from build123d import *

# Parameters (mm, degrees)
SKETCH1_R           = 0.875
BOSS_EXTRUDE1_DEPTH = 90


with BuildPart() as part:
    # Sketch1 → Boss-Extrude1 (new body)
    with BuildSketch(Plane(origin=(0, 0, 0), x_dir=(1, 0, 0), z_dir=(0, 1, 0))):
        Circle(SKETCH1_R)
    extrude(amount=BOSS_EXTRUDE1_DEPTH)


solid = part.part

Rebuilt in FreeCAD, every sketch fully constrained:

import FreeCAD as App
import Part
import Sketcher

V = App.Vector

doc = App.newDocument("Part")
body = doc.addObject("PartDesign::Body", "Body")

# Sketch on XZ plane
sketch1 = body.newObject("Sketcher::SketchObject", "Sketch")
sketch1.AttachmentSupport = (doc.getObject("XZ_Plane"), [""])
sketch1.MapMode = "FlatFace"
sketch1.addGeometry(Part.Circle(V(0, 0, 0), V(0, 0, 1), 0.9), False)
sketch1.addConstraint([
    Sketcher.Constraint("Coincident", 0, 3, -1, 1),
    Sketcher.Constraint("Diameter", 0, 1.75),
])
pad1 = body.newObject("PartDesign::Pad", "Pad")
pad1.Profile = sketch1
pad1.Length = 90
pad1.Reversed = True

doc.recompute()
